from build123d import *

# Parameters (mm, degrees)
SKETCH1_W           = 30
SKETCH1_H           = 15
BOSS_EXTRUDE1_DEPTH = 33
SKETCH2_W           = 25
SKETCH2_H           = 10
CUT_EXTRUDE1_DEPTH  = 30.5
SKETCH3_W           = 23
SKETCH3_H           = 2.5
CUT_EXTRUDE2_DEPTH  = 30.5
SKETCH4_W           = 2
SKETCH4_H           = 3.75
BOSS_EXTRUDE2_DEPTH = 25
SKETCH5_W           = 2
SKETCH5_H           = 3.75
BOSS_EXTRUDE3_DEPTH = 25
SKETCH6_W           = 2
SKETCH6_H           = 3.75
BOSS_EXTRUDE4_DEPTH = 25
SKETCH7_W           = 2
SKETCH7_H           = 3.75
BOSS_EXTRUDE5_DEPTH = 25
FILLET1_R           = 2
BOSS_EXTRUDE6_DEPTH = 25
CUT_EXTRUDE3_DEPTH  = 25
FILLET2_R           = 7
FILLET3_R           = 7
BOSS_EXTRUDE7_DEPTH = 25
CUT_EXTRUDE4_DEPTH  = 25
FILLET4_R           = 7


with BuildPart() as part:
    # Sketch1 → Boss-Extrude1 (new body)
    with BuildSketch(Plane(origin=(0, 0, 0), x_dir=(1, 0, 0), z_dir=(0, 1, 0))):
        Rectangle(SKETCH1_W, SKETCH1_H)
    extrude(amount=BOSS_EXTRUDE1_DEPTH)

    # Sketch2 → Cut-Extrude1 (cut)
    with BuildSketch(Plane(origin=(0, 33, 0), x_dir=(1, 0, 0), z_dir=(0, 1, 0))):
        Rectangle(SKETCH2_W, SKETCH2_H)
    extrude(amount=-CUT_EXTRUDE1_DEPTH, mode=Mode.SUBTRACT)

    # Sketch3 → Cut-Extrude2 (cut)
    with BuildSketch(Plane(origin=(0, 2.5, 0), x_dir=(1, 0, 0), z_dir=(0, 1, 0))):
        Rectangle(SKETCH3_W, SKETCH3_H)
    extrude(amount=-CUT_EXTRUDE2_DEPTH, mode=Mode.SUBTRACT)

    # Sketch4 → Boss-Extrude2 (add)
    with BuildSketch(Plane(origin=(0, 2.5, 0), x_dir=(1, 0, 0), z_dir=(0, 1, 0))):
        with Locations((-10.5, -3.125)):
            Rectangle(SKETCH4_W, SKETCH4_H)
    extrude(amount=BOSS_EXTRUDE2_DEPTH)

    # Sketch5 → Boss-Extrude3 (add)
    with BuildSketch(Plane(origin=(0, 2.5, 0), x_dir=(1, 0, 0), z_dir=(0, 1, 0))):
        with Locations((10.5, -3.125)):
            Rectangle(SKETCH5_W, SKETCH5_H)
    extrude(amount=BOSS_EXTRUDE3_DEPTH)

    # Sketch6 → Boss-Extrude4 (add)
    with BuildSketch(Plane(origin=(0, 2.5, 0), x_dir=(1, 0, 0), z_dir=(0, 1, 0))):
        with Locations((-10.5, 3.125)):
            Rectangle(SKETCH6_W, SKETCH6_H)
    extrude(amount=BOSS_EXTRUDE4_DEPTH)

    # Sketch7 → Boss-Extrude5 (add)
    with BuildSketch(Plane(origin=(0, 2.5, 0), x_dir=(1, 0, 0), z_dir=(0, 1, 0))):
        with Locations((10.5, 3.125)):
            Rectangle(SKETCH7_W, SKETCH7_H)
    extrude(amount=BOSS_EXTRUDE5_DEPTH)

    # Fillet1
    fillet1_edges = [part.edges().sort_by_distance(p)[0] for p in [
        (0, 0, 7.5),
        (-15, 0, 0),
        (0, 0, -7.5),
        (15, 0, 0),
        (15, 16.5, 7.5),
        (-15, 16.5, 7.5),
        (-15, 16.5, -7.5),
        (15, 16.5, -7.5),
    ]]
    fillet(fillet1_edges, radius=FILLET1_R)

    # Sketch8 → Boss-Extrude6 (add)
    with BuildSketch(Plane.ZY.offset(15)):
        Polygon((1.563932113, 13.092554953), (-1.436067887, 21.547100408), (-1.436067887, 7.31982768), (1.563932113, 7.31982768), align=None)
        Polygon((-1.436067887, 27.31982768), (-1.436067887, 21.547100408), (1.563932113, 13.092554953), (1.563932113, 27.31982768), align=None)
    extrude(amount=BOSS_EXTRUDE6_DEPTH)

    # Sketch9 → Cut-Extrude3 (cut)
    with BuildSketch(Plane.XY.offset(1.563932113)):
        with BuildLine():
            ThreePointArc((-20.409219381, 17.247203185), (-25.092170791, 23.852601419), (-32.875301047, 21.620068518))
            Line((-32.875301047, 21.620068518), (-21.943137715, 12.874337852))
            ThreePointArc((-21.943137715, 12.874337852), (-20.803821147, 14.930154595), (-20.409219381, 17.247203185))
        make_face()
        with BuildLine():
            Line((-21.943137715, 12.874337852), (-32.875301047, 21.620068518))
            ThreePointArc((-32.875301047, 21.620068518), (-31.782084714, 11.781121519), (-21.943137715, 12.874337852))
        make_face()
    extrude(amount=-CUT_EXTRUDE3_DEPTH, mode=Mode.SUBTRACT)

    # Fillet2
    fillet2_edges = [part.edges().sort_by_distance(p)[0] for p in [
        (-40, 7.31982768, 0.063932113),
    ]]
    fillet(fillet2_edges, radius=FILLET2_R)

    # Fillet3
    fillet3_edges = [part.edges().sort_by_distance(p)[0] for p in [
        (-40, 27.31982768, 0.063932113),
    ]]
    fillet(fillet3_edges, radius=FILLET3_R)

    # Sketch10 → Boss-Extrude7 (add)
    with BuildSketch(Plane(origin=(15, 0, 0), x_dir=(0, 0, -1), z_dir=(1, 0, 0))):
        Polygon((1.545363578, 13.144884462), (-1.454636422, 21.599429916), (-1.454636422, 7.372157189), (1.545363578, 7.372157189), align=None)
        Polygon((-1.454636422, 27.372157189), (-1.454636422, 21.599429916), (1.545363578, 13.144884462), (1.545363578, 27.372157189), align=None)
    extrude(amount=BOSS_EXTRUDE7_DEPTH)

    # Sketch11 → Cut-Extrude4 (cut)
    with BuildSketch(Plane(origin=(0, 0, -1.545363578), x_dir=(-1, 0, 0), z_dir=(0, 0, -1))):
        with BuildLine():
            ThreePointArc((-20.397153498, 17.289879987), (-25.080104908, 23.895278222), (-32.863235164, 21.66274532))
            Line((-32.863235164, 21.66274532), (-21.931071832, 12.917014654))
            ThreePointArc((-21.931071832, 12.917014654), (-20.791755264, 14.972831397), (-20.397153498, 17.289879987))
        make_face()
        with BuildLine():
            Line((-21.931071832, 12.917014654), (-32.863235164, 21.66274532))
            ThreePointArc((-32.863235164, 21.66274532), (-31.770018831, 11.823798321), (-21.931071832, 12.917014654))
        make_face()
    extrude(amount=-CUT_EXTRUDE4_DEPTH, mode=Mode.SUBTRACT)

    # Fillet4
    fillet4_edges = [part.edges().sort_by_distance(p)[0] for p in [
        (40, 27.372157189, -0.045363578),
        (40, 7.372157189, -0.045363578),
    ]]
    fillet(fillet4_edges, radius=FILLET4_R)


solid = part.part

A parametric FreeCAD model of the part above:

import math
import FreeCAD as App
import Part
import Sketcher
from FreeCAD import Vector


def edges_at(feature, points):
    """Names of the edges that pass closest to the given points."""
    edges = feature.Shape.Edges
    near = lambda p: min(range(len(edges)), key=lambda i: edges[i].distToShape(Part.Vertex(*p))[0])
    return sorted({f"Edge{near(p) + 1}" for p in points})

doc = App.newDocument("Part")
params = doc.addObject("Spreadsheet::Sheet", "Params")
for row, (alias, value) in enumerate([
    ("sketch1_width", "30 mm"),
    ("sketch1_height", "15 mm"),
    ("pad1_length", "33 mm"),
    ("sketch2_width", "25 mm"),
    ("sketch2_height", "10 mm"),
    ("pocket1_length", "30.5 mm"),
    ("sketch3_width", "23 mm"),
    ("sketch3_height", "2.5 mm"),
    ("pocket2_length", "30.5 mm"),
    ("sketch4_width", "2 mm"),
    ("sketch4_height", "3.75 mm"),
    ("pad2_length", "25 mm"),
    ("sketch5_width", "2 mm"),
    ("sketch5_height", "3.75 mm"),
    ("pad3_length", "25 mm"),
    ("sketch6_width", "2 mm"),
    ("sketch6_height", "3.75 mm"),
    ("pad4_length", "25 mm"),
    ("sketch7_width", "2 mm"),
    ("sketch7_height", "3.75 mm"),
    ("pad5_length", "25 mm"),
    ("fillet_radius", "2 mm"),
    ("sketch8_width", "20 mm"),
    ("sketch8_height", "3 mm"),
    ("pad6_length", "25 mm"),
    ("sketch9_radius", "7 mm"),
    ("pocket3_length", "25 mm"),
    ("fillet2_radius", "7 mm"),
    ("fillet3_radius", "7 mm"),
    ("sketch10_width", "20 mm"),
    ("sketch10_height", "3 mm"),
    ("pad7_length", "25 mm"),
    ("sketch11_radius", "7 mm"),
    ("pocket4_length", "25 mm"),
    ("fillet4_radius", "7 mm"),
], start=1):
    params.set(f"A{row}", alias)
    params.set(f"B{row}", "=" + value)
    params.setAlias(f"B{row}", alias)

body = doc.addObject("PartDesign::Body", "Body")

# Sketch on XZ plane
sketch1 = doc.addObject("Sketcher::SketchObject", "Sketch")
body.addObject(sketch1)
sketch1.AttachmentSupport = (doc.XZ_Plane, [""])
sketch1.MapMode = "FlatFace"
sketch1.addGeometry([
    Part.LineSegment(Vector(-15, -8, 0), Vector(-15, 8, 0)),
    Part.LineSegment(Vector(-15, 8, 0), Vector(15, 8, 0)),
    Part.LineSegment(Vector(15, 8, 0), Vector(15, -8, 0)),
    Part.LineSegment(Vector(15, -8, 0), Vector(-15, -8, 0)),
], False)
sketch1.addConstraint([
    Sketcher.Constraint("Coincident", 0, 2, 1, 1),
    Sketcher.Constraint("Coincident", 1, 2, 2, 1),
    Sketcher.Constraint("Coincident", 2, 2, 3, 1),
    Sketcher.Constraint("Coincident", 3, 2, 0, 1),
    Sketcher.Constraint("Vertical", 0),
    Sketcher.Constraint("Horizontal", 1),
    Sketcher.Constraint("Vertical", 2),
    Sketcher.Constraint("Horizontal", 3),
    Sketcher.Constraint("Symmetric", 0, 2, 2, 2, -1, 1),
    Sketcher.Constraint("DistanceX", 1, 1, 1, 2, 30.0),
    Sketcher.Constraint("DistanceY", 0, 1, 0, 2, 15.0),
])
sketch1.setExpression("Constraints[9]", "Params.sketch1_width")
sketch1.setExpression("Constraints[10]", "Params.sketch1_height")
pad1 = doc.addObject("PartDesign::Pad", "Pad")
body.addObject(pad1)
pad1.Profile = sketch1
pad1.setExpression("Length", "Params.pad1_length")
pad1.Reversed = True

# Sketch on XZ plane
sketch2 = doc.addObject("Sketcher::SketchObject", "Sketch001")
body.addObject(sketch2)
sketch2.AttachmentSupport = (doc.XZ_Plane, [""])
sketch2.MapMode = "FlatFace"
sketch2.AttachmentOffset = App.Placement(Vector(0, 0, -33), App.Rotation())
sketch2.addGeometry([
    Part.LineSegment(Vector(-12, -5, 0), Vector(-12, 5, 0)),
    Part.LineSegment(Vector(-12, 5, 0), Vector(12, 5, 0)),
    Part.LineSegment(Vector(12, 5, 0), Vector(12, -5, 0)),
    Part.LineSegment(Vector(12, -5, 0), Vector(-12, -5, 0)),
], False)
sketch2.addConstraint([
    Sketcher.Constraint("Coincident", 0, 2, 1, 1),
    Sketcher.Constraint("Coincident", 1, 2, 2, 1),
    Sketcher.Constraint("Coincident", 2, 2, 3, 1),
    Sketcher.Constraint("Coincident", 3, 2, 0, 1),
    Sketcher.Constraint("Vertical", 0),
    Sketcher.Constraint("Horizontal", 1),
    Sketcher.Constraint("Vertical", 2),
    Sketcher.Constraint("Horizontal", 3),
    Sketcher.Constraint("Symmetric", 0, 2, 2, 2, -1, 1),
    Sketcher.Constraint("DistanceX", 1, 1, 1, 2, 25.0),
    Sketcher.Constraint("DistanceY", 0, 1, 0, 2, 10.0),
])
sketch2.setExpression("Constraints[9]", "Params.sketch2_width")
sketch2.setExpression("Constraints[10]", "Params.sketch2_height")
pocket1 = doc.addObject("PartDesign::Pocket", "Pocket")
body.addObject(pocket1)
pocket1.Profile = sketch2
pocket1.setExpression("Length", "Params.pocket1_length")
pocket1.Reversed = True

# Sketch on XZ plane
sketch3 = doc.addObject("Sketcher::SketchObject", "Sketch002")
body.addObject(sketch3)
sketch3.AttachmentSupport = (doc.XZ_Plane, [""])
sketch3.MapMode = "FlatFace"
sketch3.AttachmentOffset = App.Placement(Vector(0, 0, -2.5), App.Rotation())
sketch3.addGeometry([
    Part.LineSegment(Vector(-11.5, -1.2, 0), Vector(-11.5, 1.2, 0)),
    Part.LineSegment(Vector(-11.5, 1.2, 0), Vector(11.5, 1.2, 0)),
    Part.LineSegment(Vector(11.5, 1.2, 0), Vector(11.5, -1.2, 0)),
    Part.LineSegment(Vector(11.5, -1.2, 0), Vector(-11.5, -1.2, 0)),
], False)
sketch3.addConstraint([
    Sketcher.Constraint("Coincident", 0, 2, 1, 1),
    Sketcher.Constraint("Coincident", 1, 2, 2, 1),
    Sketcher.Constraint("Coincident", 2, 2, 3, 1),
    Sketcher.Constraint("Coincident", 3, 2, 0, 1),
    Sketcher.Constraint("Vertical", 0),
    Sketcher.Constraint("Horizontal", 1),
    Sketcher.Constraint("Vertical", 2),
    Sketcher.Constraint("Horizontal", 3),
    Sketcher.Constraint("Symmetric", 0, 2, 2, 2, -1, 1),
    Sketcher.Constraint("DistanceX", 1, 1, 1, 2, 23.0),
    Sketcher.Constraint("DistanceY", 0, 1, 0, 2, 2.5),
])
sketch3.setExpression("Constraints[9]", "Params.sketch3_width")
sketch3.setExpression("Constraints[10]", "Params.sketch3_height")
pocket2 = doc.addObject("PartDesign::Pocket", "Pocket001")
body.addObject(pocket2)
pocket2.Profile = sketch3
pocket2.setExpression("Length", "Params.pocket2_length")
pocket2.Reversed = True

# Sketch on XZ plane
sketch4 = doc.addObject("Sketcher::SketchObject", "Sketch003")
body.addObject(sketch4)
sketch4.AttachmentSupport = (doc.XZ_Plane, [""])
sketch4.MapMode = "FlatFace"
sketch4.AttachmentOffset = App.Placement(Vector(0, 0, -2.5), App.Rotation())
sketch4.addGeometry([
    Part.LineSegment(Vector(-11.5, 1.2, 0), Vector(-11.5, 5, 0)),
    Part.LineSegment(Vector(-11.5, 5, 0), Vector(-9.5, 5, 0)),
    Part.LineSegment(Vector(-9.5, 5, 0), Vector(-9.5, 1.2, 0)),
    Part.LineSegment(Vector(-9.5, 1.2, 0), Vector(-11.5, 1.2, 0)),
], False)
sketch4.addConstraint([
    Sketcher.Constraint("Coincident", 0, 2, 1, 1),
    Sketcher.Constraint("Coincident", 1, 2, 2, 1),
    Sketcher.Constraint("Coincident", 2, 2, 3, 1),
    Sketcher.Constraint("Coincident", 3, 2, 0, 1),
    Sketcher.Constraint("Vertical", 0),
    Sketcher.Constraint("Horizontal", 1),
    Sketcher.Constraint("Vertical", 2),
    Sketcher.Constraint("Horizontal", 3),
    Sketcher.Constraint("DistanceX", 1, 1, 1, 2, 2.0),
    Sketcher.Constraint("DistanceY", -1, 1, 0, 2, 5.0),
    Sketcher.Constraint("DistanceY", 0, 1, 0, 2, 3.75),
    Sketcher.Constraint("DistanceX", 0, 2, -1, 1, 11.5),
])
sketch4.setExpression("Constraints[8]", "Params.sketch4_width")
sketch4.setExpression("Constraints[10]", "Params.sketch4_height")
pad2 = doc.addObject("PartDesign::Pad", "Pad001")
body.addObject(pad2)
pad2.Profile = sketch4
pad2.setExpression("Length", "Params.pad2_length")
pad2.Reversed = True

# Sketch on XZ plane
sketch5 = doc.addObject("Sketcher::SketchObject", "Sketch004")
body.addObject(sketch5)
sketch5.AttachmentSupport = (doc.XZ_Plane, [""])
sketch5.MapMode = "FlatFace"
sketch5.AttachmentOffset = App.Placement(Vector(0, 0, -2.5), App.Rotation())
sketch5.addGeometry([
    Part.LineSegment(Vector(9.5, 1.2, 0), Vector(9.5, 5, 0)),
    Part.LineSegment(Vector(9.5, 5, 0), Vector(11.5, 5, 0)),
    Part.LineSegment(Vector(11.5, 5, 0), Vector(11.5, 1.2, 0)),
    Part.LineSegment(Vector(11.5, 1.2, 0), Vector(9.5, 1.2, 0)),
], False)
sketch5.addConstraint([
    Sketcher.Constraint("Coincident", 0, 2, 1, 1),
    Sketcher.Constraint("Coincident", 1, 2, 2, 1),
    Sketcher.Constraint("Coincident", 2, 2, 3, 1),
    Sketcher.Constraint("Coincident", 3, 2, 0, 1),
    Sketcher.Constraint("Vertical", 0),
    Sketcher.Constraint("Horizontal", 1),
    Sketcher.Constraint("Vertical", 2),
    Sketcher.Constraint("Horizontal", 3),
    Sketcher.Constraint("DistanceX", 1, 1, 1, 2, 2.0),
    Sketcher.Constraint("DistanceY", -1, 1, 0, 2, 5.0),
    Sketcher.Constraint("DistanceY", 0, 1, 0, 2, 3.75),
    Sketcher.Constraint("DistanceX", -1, 1, 0, 2, 9.5),
])
sketch5.setExpression("Constraints[8]", "Params.sketch5_width")
sketch5.setExpression("Constraints[10]", "Params.sketch5_height")
pad3 = doc.addObject("PartDesign::Pad", "Pad002")
body.addObject(pad3)
pad3.Profile = sketch5
pad3.setExpression("Length", "Params.pad3_length")
pad3.Reversed = True

# Sketch on XZ plane
sketch6 = doc.addObject("Sketcher::SketchObject", "Sketch005")
body.addObject(sketch6)
sketch6.AttachmentSupport = (doc.XZ_Plane, [""])
sketch6.MapMode = "FlatFace"
sketch6.AttachmentOffset = App.Placement(Vector(0, 0, -2.5), App.Rotation())
sketch6.addGeometry([
    Part.LineSegment(Vector(-11.5, -5, 0), Vector(-11.5, -1.2, 0)),
    Part.LineSegment(Vector(-11.5, -1.2, 0), Vector(-9.5, -1.2, 0)),
    Part.LineSegment(Vector(-9.5, -1.2, 0), Vector(-9.5, -5, 0)),
    Part.LineSegment(Vector(-9.5, -5, 0), Vector(-11.5, -5, 0)),
], False)
sketch6.addConstraint([
    Sketcher.Constraint("Coincident", 0, 2, 1, 1),
    Sketcher.Constraint("Coincident", 1, 2, 2, 1),
    Sketcher.Constraint("Coincident", 2, 2, 3, 1),
    Sketcher.Constraint("Coincident", 3, 2, 0, 1),
    Sketcher.Constraint("Vertical", 0),
    Sketcher.Constraint("Horizontal", 1),
    Sketcher.Constraint("Vertical", 2),
    Sketcher.Constraint("Horizontal", 3),
    Sketcher.Constraint("DistanceX", 1, 1, 1, 2, 2.0),
    Sketcher.Constraint("DistanceY", 2, 2, -1, 1, 5.0),
    Sketcher.Constraint("DistanceY", 0, 1, 0, 2, 3.75),
    Sketcher.Constraint("DistanceX", 0, 2, -1, 1, 11.5),
])
sketch6.setExpression("Constraints[8]", "Params.sketch6_width")
sketch6.setExpression("Constraints[10]", "Params.sketch6_height")
pad4 = doc.addObject("PartDesign::Pad", "Pad003")
body.addObject(pad4)
pad4.Profile = sketch6
pad4.setExpression("Length", "Params.pad4_length")
pad4.Reversed = True

# Sketch on XZ plane
sketch7 = doc.addObject("Sketcher::SketchObject", "Sketch006")
body.addObject(sketch7)
sketch7.AttachmentSupport = (doc.XZ_Plane, [""])
sketch7.MapMode = "FlatFace"
sketch7.AttachmentOffset = App.Placement(Vector(0, 0, -2.5), App.Rotation())
sketch7.addGeometry([
    Part.LineSegment(Vector(9.5, -5, 0), Vector(9.5, -1.2, 0)),
    Part.LineSegment(Vector(9.5, -1.2, 0), Vector(11.5, -1.2, 0)),
    Part.LineSegment(Vector(11.5, -1.2, 0), Vector(11.5, -5, 0)),
    Part.LineSegment(Vector(11.5, -5, 0), Vector(9.5, -5, 0)),
], False)
sketch7.addConstraint([
    Sketcher.Constraint("Coincident", 0, 2, 1, 1),
    Sketcher.Constraint("Coincident", 1, 2, 2, 1),
    Sketcher.Constraint("Coincident", 2, 2, 3, 1),
    Sketcher.Constraint("Coincident", 3, 2, 0, 1),
    Sketcher.Constraint("Vertical", 0),
    Sketcher.Constraint("Horizontal", 1),
    Sketcher.Constraint("Vertical", 2),
    Sketcher.Constraint("Horizontal", 3),
    Sketcher.Constraint("DistanceX", 1, 1, 1, 2, 2.0),
    Sketcher.Constraint("DistanceY", 2, 2, -1, 1, 5.0),
    Sketcher.Constraint("DistanceY", 0, 1, 0, 2, 3.75),
    Sketcher.Constraint("DistanceX", -1, 1, 0, 2, 9.5),
])
sketch7.setExpression("Constraints[8]", "Params.sketch7_width")
sketch7.setExpression("Constraints[10]", "Params.sketch7_height")
pad5 = doc.addObject("PartDesign::Pad", "Pad004")
body.addObject(pad5)
pad5.Profile = sketch7
pad5.setExpression("Length", "Params.pad5_length")
pad5.Reversed = True
doc.recompute()

fillet = doc.addObject("PartDesign::Fillet", "Fillet")
body.addObject(fillet)
fillet.Base = (pad5, edges_at(pad5, [
    (0, 0, 7.5),
    (-15, 0, 0),
    (0, 0, -7.5),
    (15, 0, 0),
    (15, 16.5, 7.5),
    (-15, 16.5, 7.5),
    (-15, 16.5, -7.5),
    (15, 16.5, -7.5),
]))
fillet.setExpression("Radius", "Params.fillet_radius")

# Sketch on YZ plane
sketch8 = doc.addObject("Sketcher::SketchObject", "Sketch007")
body.addObject(sketch8)
sketch8.AttachmentSupport = (doc.YZ_Plane, [""])
sketch8.MapMode = "FlatFace"
sketch8.AttachmentOffset = App.Placement(Vector(0, 0, -15), App.Rotation())
sketch8.addGeometry([
    Part.LineSegment(Vector(7.3, -1.4, 0), Vector(7.3, 1.6, 0)),
    Part.LineSegment(Vector(7.3, 1.6, 0), Vector(27.3, 1.6, 0)),
    Part.LineSegment(Vector(27.3, 1.6, 0), Vector(27.3, -1.4, 0)),
    Part.LineSegment(Vector(27.3, -1.4, 0), Vector(7.3, -1.4, 0)),
], False)
sketch8.addConstraint([
    Sketcher.Constraint("Coincident", 0, 2, 1, 1),
    Sketcher.Constraint("Coincident", 1, 2, 2, 1),
    Sketcher.Constraint("Coincident", 2, 2, 3, 1),
    Sketcher.Constraint("Coincident", 3, 2, 0, 1),
    Sketcher.Constraint("Vertical", 0),
    Sketcher.Constraint("Horizontal", 1),
    Sketcher.Constraint("Vertical", 2),
    Sketcher.Constraint("Horizontal", 3),
    Sketcher.Constraint("DistanceX", 1, 1, 1, 2, 20.0),
    Sketcher.Constraint("DistanceY", 0, 1, 0, 2, 3.0),
    Sketcher.Constraint("DistanceX", -1, 1, 0, 2, 7.319828),
    Sketcher.Constraint("DistanceY", -1, 1, 0, 2, 1.563932),
])
sketch8.setExpression("Constraints[8]", "Params.sketch8_width")
sketch8.setExpression("Constraints[9]", "Params.sketch8_height")
pad6 = doc.addObject("PartDesign::Pad", "Pad005")
body.addObject(pad6)
pad6.Profile = sketch8
pad6.setExpression("Length", "Params.pad6_length")
pad6.Reversed = True

# Sketch on XY plane
sketch9 = doc.addObject("Sketcher::SketchObject", "Sketch008")
body.addObject(sketch9)
sketch9.AttachmentSupport = (doc.XY_Plane, [""])
sketch9.MapMode = "FlatFace"
sketch9.AttachmentOffset = App.Placement(Vector(0, 0, 1.563932), App.Rotation())
sketch9.addGeometry([
    Part.ArcOfCircle(Part.Circle(Vector(-27.4, 17.2, 0), Vector(0, 0, 1), 7), math.radians(0), math.radians(141)),
    Part.ArcOfCircle(Part.Circle(Vector(-27.4, 17.2, 0), Vector(0, 0, 1), 7), math.radians(141), math.radians(321)),
    Part.ArcOfCircle(Part.Circle(Vector(-27.4, 17.2, 0), Vector(0, 0, 1), 7), math.radians(-39), math.radians(0)),
], False)
sketch9.addConstraint([
    Sketcher.Constraint("Tangent", 0, 2, 1, 1),
    Sketcher.Constraint("Tangent", 1, 2, 2, 1),
    Sketcher.Constraint("Tangent", 2, 2, 0, 1),
    Sketcher.Constraint("Horizontal", 1, 3, 2, 2),
    Sketcher.Constraint("Radius", 0, 7.0),
    Sketcher.Constraint("DistanceX", 0, 2, -1, 1, 32.875301),
    Sketcher.Constraint("DistanceX", 0, 3, -1, 1, 27.409219),
    Sketcher.Constraint("DistanceY", -1, 1, 0, 2, 21.620069),
    Sketcher.Constraint("DistanceX", 0, 3, 1, 2, 5.466082),
])
sketch9.setExpression("Constraints[4]", "Params.sketch9_radius")
pocket3 = doc.addObject("PartDesign::Pocket", "Pocket002")
body.addObject(pocket3)
pocket3.Profile = sketch9
pocket3.setExpression("Length", "Params.pocket3_length")
doc.recompute()

fillet2 = doc.addObject("PartDesign::Fillet", "Fillet001")
body.addObject(fillet2)
fillet2.Base = (pocket3, edges_at(pocket3, [(-40, 7.32, 0.064)]))
fillet2.setExpression("Radius", "Params.fillet2_radius")
doc.recompute()

fillet3 = doc.addObject("PartDesign::Fillet", "Fillet002")
body.addObject(fillet3)
fillet3.Base = (fillet2, edges_at(fillet2, [(-40, 27.32, 0.064)]))
fillet3.setExpression("Radius", "Params.fillet3_radius")

# Sketch on YZ plane
sketch10 = doc.addObject("Sketcher::SketchObject", "Sketch009")
body.addObject(sketch10)
sketch10.AttachmentSupport = (doc.YZ_Plane, [""])
sketch10.MapMode = "FlatFace"
sketch10.AttachmentOffset = App.Placement(Vector(0, 0, 15), App.Rotation())
sketch10.addGeometry([
    Part.LineSegment(Vector(7.4, 1.5, 0), Vector(7.4, -1.5, 0)),
    Part.LineSegment(Vector(7.4, -1.5, 0), Vector(27.4, -1.5, 0)),
    Part.LineSegment(Vector(27.4, -1.5, 0), Vector(27.4, 1.5, 0)),
    Part.LineSegment(Vector(27.4, 1.5, 0), Vector(7.4, 1.5, 0)),
], False)
sketch10.addConstraint([
    Sketcher.Constraint("Coincident", 0, 2, 1, 1),
    Sketcher.Constraint("Coincident", 1, 2, 2, 1),
    Sketcher.Constraint("Coincident", 2, 2, 3, 1),
    Sketcher.Constraint("Coincident", 3, 2, 0, 1),
    Sketcher.Constraint("Vertical", 0),
    Sketcher.Constraint("Horizontal", 1),
    Sketcher.Constraint("Vertical", 2),
    Sketcher.Constraint("Horizontal", 3),
    Sketcher.Constraint("DistanceX", 1, 1, 1, 2, 20.0),
    Sketcher.Constraint("DistanceY", 0, 2, 0, 1, 3.0),
    Sketcher.Constraint("DistanceX", -1, 1, 0, 2, 7.372157),
    Sketcher.Constraint("DistanceY", 0, 2, -1, 1, 1.545364),
])
sketch10.setExpression("Constraints[8]", "Params.sketch10_width")
sketch10.setExpression("Constraints[9]", "Params.sketch10_height")
pad7 = doc.addObject("PartDesign::Pad", "Pad006")
body.addObject(pad7)
pad7.Profile = sketch10
pad7.setExpression("Length", "Params.pad7_length")

# Sketch on XY plane
sketch11 = doc.addObject("Sketcher::SketchObject", "Sketch010")
body.addObject(sketch11)
sketch11.AttachmentSupport = (doc.XY_Plane, [""])
sketch11.MapMode = "FlatFace"
sketch11.AttachmentOffset = App.Placement(Vector(0, 0, -1.545364), App.Rotation())
sketch11.addGeometry([
    Part.ArcOfCircle(Part.Circle(Vector(27.4, 17.3, 0), Vector(0, 0, 1), 7), math.radians(39), math.radians(180)),
    Part.ArcOfCircle(Part.Circle(Vector(27.4, 17.3, 0), Vector(0, 0, 1), 7), math.radians(-141), math.radians(39)),
    Part.ArcOfCircle(Part.Circle(Vector(27.4, 17.3, 0), Vector(0, 0, 1), 7), math.radians(-180), math.radians(-141)),
], False)
sketch11.addConstraint([
    Sketcher.Constraint("Tangent", 0, 1, 1, 2),
    Sketcher.Constraint("Tangent", 1, 1, 2, 2),
    Sketcher.Constraint("Tangent", 2, 1, 0, 2),
    Sketcher.Constraint("Horizontal", 1, 3, 2, 1),
    Sketcher.Constraint("Radius", 0, 7.0),
    Sketcher.Constraint("DistanceY", -1, 1, 0, 3, 17.28988),
    Sketcher.Constraint("DistanceX", -1, 1, 1, 1, 21.931072),
    Sketcher.Constraint("DistanceX", 2, 3, 0, 1, 5.466082),
    Sketcher.Constraint("DistanceX", 1, 1, 1, 3, 5.466082),
])
sketch11.setExpression("Constraints[4]", "Params.sketch11_radius")
pocket4 = doc.addObject("PartDesign::Pocket", "Pocket003")
body.addObject(pocket4)
pocket4.Profile = sketch11
pocket4.setExpression("Length", "Params.pocket4_length")
pocket4.Reversed = True
doc.recompute()

fillet4 = doc.addObject("PartDesign::Fillet", "Fillet003")
body.addObject(fillet4)
fillet4.Base = (pocket4, edges_at(pocket4, [(40, 27.372, -0.045), (40, 7.372, -0.045)]))
fillet4.setExpression("Radius", "Params.fillet4_radius")

doc.recompute()
